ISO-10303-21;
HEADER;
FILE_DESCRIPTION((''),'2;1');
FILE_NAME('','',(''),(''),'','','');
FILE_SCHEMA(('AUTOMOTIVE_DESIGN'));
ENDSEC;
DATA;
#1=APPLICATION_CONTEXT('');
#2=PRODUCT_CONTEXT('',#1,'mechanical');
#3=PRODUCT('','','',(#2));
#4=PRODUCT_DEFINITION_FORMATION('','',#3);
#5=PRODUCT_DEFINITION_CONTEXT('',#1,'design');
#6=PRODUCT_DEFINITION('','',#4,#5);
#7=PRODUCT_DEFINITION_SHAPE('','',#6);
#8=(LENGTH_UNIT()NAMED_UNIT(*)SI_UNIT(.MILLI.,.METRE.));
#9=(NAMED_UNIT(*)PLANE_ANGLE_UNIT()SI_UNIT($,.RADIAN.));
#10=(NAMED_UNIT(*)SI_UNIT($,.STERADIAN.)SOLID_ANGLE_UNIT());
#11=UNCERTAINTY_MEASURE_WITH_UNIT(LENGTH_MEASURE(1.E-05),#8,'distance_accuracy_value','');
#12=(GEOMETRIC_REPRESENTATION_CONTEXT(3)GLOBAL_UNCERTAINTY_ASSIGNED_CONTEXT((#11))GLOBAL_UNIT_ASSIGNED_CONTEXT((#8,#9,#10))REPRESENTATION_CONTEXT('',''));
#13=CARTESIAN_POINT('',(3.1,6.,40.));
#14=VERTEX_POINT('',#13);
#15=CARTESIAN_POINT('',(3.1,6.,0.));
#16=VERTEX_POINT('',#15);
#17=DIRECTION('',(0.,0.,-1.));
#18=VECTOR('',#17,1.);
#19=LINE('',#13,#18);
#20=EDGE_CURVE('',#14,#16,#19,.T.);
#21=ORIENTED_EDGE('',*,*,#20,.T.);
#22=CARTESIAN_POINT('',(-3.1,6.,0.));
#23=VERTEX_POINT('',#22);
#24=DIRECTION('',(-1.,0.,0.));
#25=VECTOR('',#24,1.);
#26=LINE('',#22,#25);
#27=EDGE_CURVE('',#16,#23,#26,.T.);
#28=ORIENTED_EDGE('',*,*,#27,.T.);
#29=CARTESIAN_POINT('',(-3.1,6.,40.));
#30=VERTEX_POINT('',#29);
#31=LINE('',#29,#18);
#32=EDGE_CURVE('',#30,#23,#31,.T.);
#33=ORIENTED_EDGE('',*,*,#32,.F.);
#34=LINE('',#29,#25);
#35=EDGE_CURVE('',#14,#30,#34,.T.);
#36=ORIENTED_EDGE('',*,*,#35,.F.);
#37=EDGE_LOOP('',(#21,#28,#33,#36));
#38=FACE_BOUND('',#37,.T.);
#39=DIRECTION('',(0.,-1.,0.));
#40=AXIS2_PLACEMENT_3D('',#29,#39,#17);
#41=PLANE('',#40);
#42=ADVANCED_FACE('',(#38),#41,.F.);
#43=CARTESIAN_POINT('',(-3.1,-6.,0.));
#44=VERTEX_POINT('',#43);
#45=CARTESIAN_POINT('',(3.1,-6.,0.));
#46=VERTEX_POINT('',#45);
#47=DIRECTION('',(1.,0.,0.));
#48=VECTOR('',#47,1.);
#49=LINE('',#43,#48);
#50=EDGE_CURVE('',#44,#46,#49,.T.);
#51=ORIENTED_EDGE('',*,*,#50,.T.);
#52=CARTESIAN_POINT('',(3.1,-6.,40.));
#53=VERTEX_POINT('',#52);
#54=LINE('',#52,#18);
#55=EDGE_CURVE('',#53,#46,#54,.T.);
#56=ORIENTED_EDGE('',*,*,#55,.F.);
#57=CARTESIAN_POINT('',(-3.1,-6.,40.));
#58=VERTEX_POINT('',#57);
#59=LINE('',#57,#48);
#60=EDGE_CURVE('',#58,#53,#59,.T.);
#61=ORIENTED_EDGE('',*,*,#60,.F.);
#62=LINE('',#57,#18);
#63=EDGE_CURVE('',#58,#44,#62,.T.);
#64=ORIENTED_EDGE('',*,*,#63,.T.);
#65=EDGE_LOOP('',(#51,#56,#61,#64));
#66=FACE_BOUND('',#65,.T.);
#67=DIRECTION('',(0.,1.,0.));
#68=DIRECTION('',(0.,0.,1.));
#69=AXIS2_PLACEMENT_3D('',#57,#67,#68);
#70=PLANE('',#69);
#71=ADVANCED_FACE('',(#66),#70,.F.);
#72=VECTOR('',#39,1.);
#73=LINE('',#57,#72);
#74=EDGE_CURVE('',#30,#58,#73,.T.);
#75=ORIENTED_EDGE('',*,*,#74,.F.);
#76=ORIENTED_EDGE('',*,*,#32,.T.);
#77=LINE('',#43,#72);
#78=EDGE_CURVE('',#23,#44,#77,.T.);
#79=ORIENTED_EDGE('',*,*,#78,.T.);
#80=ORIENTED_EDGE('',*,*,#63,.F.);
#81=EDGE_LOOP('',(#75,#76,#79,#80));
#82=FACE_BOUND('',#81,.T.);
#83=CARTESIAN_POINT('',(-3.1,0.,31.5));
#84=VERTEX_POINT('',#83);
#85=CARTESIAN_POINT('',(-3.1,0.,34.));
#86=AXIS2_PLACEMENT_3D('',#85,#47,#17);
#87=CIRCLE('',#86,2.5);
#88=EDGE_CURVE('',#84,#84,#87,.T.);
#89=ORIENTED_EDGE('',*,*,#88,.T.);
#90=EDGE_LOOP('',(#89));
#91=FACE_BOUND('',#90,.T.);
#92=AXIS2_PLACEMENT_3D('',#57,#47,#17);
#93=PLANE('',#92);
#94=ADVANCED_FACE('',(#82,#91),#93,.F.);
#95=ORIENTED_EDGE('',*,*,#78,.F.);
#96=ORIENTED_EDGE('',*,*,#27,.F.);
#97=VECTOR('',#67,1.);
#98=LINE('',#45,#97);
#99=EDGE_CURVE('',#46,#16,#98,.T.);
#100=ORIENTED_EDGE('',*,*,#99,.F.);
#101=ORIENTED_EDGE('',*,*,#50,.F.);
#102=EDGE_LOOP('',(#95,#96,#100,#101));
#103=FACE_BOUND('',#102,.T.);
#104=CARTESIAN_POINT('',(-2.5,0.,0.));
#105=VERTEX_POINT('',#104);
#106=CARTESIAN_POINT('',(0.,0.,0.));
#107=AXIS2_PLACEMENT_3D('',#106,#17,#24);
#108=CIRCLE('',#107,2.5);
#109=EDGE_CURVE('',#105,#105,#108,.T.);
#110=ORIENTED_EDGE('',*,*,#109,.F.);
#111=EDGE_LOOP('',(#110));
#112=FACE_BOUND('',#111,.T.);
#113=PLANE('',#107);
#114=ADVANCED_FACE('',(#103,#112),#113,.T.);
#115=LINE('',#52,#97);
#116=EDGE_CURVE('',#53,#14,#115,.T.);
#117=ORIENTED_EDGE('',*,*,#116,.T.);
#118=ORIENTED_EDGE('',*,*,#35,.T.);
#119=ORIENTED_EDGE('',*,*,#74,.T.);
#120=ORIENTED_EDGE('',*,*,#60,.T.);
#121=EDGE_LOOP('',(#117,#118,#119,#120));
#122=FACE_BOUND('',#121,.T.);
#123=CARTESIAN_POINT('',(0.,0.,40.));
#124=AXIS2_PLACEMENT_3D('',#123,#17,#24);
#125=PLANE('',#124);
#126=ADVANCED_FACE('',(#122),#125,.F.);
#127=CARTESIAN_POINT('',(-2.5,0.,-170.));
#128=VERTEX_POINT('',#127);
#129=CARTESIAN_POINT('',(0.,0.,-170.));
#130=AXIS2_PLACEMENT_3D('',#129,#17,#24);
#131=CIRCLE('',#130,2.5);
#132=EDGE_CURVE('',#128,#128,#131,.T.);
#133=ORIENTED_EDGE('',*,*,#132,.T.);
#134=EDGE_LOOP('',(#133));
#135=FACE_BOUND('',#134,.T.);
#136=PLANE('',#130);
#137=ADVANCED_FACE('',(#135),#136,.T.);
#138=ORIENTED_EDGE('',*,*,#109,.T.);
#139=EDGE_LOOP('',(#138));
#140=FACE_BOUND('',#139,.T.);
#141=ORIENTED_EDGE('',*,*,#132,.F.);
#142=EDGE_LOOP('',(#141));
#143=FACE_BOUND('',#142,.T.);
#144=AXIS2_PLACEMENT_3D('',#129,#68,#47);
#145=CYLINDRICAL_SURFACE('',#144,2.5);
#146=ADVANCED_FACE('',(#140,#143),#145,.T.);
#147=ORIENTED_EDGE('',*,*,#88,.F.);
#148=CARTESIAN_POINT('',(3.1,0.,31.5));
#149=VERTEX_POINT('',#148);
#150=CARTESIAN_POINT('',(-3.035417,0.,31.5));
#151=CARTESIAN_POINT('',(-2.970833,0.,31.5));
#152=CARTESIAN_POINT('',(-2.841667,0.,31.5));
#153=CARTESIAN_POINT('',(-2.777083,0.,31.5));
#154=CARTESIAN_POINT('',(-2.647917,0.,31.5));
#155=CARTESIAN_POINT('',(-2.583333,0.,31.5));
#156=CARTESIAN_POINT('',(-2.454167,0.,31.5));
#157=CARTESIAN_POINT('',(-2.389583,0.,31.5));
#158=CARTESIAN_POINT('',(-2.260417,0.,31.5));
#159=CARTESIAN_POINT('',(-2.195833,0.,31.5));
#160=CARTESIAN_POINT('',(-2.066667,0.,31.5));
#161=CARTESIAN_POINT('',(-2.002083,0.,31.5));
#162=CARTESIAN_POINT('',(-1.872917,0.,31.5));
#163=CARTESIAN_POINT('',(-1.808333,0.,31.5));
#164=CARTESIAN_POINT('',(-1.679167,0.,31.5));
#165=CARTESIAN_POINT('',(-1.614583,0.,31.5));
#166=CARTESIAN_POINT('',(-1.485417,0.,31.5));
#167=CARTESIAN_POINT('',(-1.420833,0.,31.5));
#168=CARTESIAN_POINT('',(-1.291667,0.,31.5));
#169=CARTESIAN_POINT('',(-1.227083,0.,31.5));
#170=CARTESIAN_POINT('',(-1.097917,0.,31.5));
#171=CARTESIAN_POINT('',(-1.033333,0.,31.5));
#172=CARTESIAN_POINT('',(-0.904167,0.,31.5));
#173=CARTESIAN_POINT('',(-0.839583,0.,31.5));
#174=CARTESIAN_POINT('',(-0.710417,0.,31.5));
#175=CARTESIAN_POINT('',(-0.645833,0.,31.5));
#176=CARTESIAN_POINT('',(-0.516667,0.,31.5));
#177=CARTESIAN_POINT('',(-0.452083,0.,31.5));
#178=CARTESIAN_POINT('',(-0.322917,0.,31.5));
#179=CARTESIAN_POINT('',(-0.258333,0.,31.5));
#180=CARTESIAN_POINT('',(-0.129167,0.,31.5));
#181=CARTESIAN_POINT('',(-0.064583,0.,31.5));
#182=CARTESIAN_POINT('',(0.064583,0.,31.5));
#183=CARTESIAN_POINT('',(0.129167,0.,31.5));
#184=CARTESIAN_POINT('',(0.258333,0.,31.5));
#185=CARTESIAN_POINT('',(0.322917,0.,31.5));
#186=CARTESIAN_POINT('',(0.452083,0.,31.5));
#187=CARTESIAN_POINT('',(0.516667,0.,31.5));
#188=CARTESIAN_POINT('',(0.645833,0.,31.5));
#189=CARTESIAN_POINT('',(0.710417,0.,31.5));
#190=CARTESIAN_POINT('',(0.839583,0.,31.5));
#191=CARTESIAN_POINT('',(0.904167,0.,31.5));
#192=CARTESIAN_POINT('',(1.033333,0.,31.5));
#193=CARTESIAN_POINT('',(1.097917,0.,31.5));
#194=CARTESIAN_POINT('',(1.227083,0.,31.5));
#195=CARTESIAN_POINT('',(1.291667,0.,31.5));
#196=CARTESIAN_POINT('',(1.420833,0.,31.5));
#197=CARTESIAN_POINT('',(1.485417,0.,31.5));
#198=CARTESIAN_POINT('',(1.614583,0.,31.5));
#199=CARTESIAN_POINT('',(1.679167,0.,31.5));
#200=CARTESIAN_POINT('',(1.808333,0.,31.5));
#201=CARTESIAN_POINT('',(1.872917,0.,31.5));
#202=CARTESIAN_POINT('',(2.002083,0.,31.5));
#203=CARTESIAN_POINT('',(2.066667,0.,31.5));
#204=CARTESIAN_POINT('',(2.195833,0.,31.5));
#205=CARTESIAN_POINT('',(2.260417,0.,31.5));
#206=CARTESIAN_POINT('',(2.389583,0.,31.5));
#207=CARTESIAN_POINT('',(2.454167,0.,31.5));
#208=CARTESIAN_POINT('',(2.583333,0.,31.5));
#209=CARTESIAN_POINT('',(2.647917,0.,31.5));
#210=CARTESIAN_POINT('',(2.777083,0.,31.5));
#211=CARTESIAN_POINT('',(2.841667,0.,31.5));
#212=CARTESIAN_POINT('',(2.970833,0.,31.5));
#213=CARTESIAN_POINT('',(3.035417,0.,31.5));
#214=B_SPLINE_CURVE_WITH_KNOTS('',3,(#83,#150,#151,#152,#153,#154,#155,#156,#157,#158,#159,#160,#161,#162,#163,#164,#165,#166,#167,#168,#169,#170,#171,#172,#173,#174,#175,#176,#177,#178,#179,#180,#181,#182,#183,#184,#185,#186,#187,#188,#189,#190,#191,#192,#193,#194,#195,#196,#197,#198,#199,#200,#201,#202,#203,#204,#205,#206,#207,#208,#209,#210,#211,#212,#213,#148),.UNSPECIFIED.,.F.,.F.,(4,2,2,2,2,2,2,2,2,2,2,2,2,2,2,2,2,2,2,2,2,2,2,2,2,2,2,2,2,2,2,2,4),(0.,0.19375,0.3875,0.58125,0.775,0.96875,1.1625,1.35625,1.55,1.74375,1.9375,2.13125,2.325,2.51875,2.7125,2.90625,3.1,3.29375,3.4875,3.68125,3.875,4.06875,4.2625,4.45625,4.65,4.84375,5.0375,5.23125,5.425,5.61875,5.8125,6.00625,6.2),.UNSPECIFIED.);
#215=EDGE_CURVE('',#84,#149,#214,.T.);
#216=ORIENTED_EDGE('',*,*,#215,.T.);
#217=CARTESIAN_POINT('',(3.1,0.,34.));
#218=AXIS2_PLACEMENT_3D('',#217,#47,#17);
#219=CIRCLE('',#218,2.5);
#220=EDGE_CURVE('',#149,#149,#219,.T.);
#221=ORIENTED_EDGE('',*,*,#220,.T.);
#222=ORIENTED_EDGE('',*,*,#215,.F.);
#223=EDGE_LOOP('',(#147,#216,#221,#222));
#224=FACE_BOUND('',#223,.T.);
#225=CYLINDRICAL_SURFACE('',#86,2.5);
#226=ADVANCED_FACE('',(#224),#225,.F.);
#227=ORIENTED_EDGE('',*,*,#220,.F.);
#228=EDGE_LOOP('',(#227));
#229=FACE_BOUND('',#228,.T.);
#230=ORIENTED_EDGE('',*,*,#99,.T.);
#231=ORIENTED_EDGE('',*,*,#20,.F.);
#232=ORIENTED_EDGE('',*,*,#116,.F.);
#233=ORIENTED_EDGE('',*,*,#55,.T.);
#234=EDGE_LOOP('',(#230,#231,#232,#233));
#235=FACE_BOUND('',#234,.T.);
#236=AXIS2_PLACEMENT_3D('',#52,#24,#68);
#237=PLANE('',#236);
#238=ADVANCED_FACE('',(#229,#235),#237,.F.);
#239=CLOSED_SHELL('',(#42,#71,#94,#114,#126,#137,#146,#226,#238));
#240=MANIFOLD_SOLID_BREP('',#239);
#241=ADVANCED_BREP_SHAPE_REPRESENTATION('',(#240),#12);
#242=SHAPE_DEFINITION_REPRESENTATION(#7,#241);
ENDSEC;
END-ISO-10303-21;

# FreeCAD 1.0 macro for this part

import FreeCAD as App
import Part
import Sketcher
from FreeCAD import Vector
Q = App.Units.Quantity

doc = App.newDocument("Part")
params = doc.addObject("Spreadsheet::Sheet", "Params")
for row, (alias, value) in enumerate([
    ("sketch1_height", "12 mm"),
    ("sketch1_width", "6.2 mm"),
    ("pad1_length", "40 mm"),
    ("sketch2_diameter", "5 mm"),
    ("sketch3_diameter", "5 mm"),
    ("pad2_length", "170 mm"),
], start=1):
    params.set(f"A{row}", alias)
    params.set(f"B{row}", "=" + value)
    params.setAlias(f"B{row}", alias)

body = doc.addObject("PartDesign::Body", "Body")

# Sketch on XY plane
sketch1 = doc.addObject("Sketcher::SketchObject", "Sketch")
body.addObject(sketch1)
sketch1.AttachmentSupport = (doc.XY_Plane, [""])
sketch1.MapMode = "FlatFace"
sketch1.addGeometry(Part.LineSegment(Vector(-3, 6, 0), Vector(-3, -6, 0)), False)
sketch1.addGeometry(Part.LineSegment(Vector(-3, -6, 0), Vector(3, -6, 0)), False)
sketch1.addGeometry(Part.LineSegment(Vector(3, -6, 0), Vector(3, 6, 0)), False)
sketch1.addGeometry(Part.LineSegment(Vector(3, 6, 0), Vector(-3, 6, 0)), False)
sketch1.addConstraint(Sketcher.Constraint("Coincident", 0, 2, 1, 1))
sketch1.addConstraint(Sketcher.Constraint("Coincident", 1, 2, 2, 1))
sketch1.addConstraint(Sketcher.Constraint("Coincident", 2, 2, 3, 1))
sketch1.addConstraint(Sketcher.Constraint("Coincident", 3, 2, 0, 1))
sketch1.addConstraint(Sketcher.Constraint("Vertical", 0))
sketch1.addConstraint(Sketcher.Constraint("Horizontal", 1))
sketch1.addConstraint(Sketcher.Constraint("Vertical", 2))
sketch1.addConstraint(Sketcher.Constraint("Horizontal", 3))
sketch1.addConstraint(Sketcher.Constraint("Symmetric", 0, 2, 2, 2, -1, 1))
sketch1.addConstraint(Sketcher.Constraint("DistanceY", 0, 2, 0, 1, Q("12 mm")))
sketch1.addConstraint(Sketcher.Constraint("DistanceX", 1, 1, 1, 2, Q("6.2 mm")))
sketch1.setExpression("Constraints[9]", "Params.sketch1_height")
sketch1.setExpression("Constraints[10]", "Params.sketch1_width")
pad1 = doc.addObject("PartDesign::Pad", "Pad")
body.addObject(pad1)
pad1.Profile = sketch1
pad1.setExpression("Length", "Params.pad1_length")

# Sketch on YZ plane
sketch2 = doc.addObject("Sketcher::SketchObject", "Sketch001")
body.addObject(sketch2)
sketch2.AttachmentSupport = (doc.YZ_Plane, [""])
sketch2.MapMode = "FlatFace"
sketch2.AttachmentOffset = App.Placement(Vector(0, 0, 3.1), App.Rotation())
sketch2.addGeometry(Part.Circle(Vector(0, 34, 0), Vector(0, 0, 1), 2.5), False)
sketch2.addConstraint(Sketcher.Constraint("PointOnObject", 0, 3, -2))
sketch2.addConstraint(Sketcher.Constraint("Diameter", 0, Q("5 mm")))
sketch2.addConstraint(Sketcher.Constraint("DistanceY", -1, 1, 0, 3, Q("34 mm")))
sketch2.setExpression("Constraints[1]", "Params.sketch2_diameter")
pocket1 = doc.addObject("PartDesign::Pocket", "Pocket")
body.addObject(pocket1)
pocket1.Profile = sketch2
pocket1.Type = "ThroughAll"

# Sketch on XY plane
sketch3 = doc.addObject("Sketcher::SketchObject", "Sketch002")
body.addObject(sketch3)
sketch3.AttachmentSupport = (doc.XY_Plane, [""])
sketch3.MapMode = "FlatFace"
sketch3.addGeometry(Part.Circle(Vector(0, 0, 0), Vector(0, 0, 1), 2.5), False)
sketch3.addConstraint(Sketcher.Constraint("Coincident", 0, 3, -1, 1))
sketch3.addConstraint(Sketcher.Constraint("Diameter", 0, Q("5 mm")))
sketch3.setExpression("Constraints[1]", "Params.sketch3_diameter")
pad2 = doc.addObject("PartDesign::Pad", "Pad001")
body.addObject(pad2)
pad2.Profile = sketch3
pad2.setExpression("Length", "Params.pad2_length")
pad2.Reversed = True

doc.recompute()
